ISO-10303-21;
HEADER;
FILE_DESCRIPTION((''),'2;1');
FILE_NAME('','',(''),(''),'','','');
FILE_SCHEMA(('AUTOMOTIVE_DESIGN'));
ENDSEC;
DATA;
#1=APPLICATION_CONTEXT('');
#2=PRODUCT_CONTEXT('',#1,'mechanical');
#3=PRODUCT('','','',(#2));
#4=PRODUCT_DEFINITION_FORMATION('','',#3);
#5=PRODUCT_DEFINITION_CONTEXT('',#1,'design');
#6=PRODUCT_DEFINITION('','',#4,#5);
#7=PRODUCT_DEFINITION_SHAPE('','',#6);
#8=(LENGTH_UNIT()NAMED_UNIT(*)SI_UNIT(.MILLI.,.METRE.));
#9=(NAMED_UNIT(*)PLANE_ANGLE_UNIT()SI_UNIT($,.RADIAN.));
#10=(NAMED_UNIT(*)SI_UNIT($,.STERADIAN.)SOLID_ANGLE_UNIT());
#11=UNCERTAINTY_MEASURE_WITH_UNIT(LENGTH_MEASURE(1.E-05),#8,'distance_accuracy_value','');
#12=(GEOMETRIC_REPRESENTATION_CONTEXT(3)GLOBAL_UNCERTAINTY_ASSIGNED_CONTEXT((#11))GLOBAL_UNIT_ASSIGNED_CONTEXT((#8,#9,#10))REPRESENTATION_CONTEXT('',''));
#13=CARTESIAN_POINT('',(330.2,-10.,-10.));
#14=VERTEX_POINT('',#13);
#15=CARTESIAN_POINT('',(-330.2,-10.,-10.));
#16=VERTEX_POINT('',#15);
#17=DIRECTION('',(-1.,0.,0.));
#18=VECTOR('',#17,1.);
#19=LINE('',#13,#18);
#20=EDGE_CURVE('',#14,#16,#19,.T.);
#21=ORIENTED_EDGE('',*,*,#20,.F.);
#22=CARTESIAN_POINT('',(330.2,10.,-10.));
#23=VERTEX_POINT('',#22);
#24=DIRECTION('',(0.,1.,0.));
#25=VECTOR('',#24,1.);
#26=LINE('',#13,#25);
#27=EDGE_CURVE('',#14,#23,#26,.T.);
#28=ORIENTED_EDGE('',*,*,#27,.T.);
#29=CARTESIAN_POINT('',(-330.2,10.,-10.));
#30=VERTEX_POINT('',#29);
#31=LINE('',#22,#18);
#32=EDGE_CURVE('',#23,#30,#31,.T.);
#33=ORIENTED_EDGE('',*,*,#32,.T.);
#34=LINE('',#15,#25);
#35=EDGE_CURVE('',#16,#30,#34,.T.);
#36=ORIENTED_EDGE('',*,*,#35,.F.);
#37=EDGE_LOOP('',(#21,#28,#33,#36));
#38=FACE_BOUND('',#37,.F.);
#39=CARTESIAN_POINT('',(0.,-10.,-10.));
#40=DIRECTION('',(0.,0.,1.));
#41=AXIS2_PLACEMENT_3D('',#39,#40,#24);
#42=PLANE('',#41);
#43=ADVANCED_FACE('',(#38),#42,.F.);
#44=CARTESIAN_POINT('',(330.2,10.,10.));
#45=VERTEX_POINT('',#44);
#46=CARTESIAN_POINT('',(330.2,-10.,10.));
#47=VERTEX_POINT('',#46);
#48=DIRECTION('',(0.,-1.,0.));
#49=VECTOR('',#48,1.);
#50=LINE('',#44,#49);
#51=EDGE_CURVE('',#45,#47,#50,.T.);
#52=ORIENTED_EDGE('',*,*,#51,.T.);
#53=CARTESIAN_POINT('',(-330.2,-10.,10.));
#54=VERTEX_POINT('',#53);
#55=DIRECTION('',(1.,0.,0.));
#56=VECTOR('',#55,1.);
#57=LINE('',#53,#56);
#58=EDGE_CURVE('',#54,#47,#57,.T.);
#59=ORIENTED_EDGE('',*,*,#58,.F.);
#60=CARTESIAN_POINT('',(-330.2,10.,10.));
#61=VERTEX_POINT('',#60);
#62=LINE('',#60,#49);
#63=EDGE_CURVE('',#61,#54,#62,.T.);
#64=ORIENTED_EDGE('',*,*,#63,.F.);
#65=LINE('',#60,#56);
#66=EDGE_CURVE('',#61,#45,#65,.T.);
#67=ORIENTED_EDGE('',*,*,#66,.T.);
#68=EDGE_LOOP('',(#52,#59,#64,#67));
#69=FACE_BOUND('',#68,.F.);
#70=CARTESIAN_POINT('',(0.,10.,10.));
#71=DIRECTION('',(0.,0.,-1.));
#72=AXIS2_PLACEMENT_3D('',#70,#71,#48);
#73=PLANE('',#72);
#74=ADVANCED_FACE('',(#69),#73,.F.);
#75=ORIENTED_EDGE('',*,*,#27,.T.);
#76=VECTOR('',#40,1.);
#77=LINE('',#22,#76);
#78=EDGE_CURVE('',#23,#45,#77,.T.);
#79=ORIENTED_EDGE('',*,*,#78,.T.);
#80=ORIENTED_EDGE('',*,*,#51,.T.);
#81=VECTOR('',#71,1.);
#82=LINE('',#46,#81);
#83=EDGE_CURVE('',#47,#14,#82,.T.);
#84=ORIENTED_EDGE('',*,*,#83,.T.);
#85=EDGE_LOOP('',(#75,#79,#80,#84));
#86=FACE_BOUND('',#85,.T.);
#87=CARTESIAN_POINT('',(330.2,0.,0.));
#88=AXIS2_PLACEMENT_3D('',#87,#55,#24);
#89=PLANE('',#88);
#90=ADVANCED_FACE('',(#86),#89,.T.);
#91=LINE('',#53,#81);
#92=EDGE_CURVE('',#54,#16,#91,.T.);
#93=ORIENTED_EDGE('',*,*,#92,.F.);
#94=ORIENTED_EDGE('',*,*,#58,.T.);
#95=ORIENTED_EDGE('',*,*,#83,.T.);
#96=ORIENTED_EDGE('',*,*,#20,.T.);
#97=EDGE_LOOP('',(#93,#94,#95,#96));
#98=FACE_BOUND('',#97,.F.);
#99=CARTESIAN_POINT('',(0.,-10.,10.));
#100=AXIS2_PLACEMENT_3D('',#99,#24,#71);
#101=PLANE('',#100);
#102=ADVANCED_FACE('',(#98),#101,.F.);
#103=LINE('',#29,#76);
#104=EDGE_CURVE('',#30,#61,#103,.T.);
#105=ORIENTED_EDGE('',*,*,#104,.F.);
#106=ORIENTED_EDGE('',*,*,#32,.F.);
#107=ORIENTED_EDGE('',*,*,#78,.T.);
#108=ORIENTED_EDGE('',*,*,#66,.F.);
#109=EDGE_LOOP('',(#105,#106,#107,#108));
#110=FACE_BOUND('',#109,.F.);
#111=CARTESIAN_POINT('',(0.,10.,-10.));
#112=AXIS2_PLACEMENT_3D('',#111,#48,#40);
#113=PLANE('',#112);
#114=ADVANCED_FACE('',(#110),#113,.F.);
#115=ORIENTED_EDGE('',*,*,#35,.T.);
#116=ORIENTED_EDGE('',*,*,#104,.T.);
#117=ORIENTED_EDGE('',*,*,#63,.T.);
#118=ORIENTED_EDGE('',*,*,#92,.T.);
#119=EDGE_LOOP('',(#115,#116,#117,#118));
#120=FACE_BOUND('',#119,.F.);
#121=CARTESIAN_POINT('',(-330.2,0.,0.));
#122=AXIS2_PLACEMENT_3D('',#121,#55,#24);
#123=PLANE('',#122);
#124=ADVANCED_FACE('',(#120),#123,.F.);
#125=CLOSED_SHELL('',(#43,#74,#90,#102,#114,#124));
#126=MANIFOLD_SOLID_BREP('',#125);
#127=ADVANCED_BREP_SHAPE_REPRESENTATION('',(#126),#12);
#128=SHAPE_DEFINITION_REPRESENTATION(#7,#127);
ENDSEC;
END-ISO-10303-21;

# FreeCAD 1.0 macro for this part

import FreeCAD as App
import Part
import Sketcher

V = App.Vector
Q = App.Units.Quantity

doc = App.newDocument("Part")
body = doc.addObject("PartDesign::Body", "Body")

# Sketch on YZ plane
sketch1 = body.newObject("Sketcher::SketchObject", "Sketch")
sketch1.AttachmentSupport = (doc.getObject("YZ_Plane"), [""])
sketch1.MapMode = "FlatFace"
sketch1.addGeometry([
    Part.LineSegment(V(10, -10, 0), V(10, 10, 0)),
    Part.LineSegment(V(10, 10, 0), V(-10, 10, 0)),
    Part.LineSegment(V(-10, 10, 0), V(-10, -10, 0)),
    Part.LineSegment(V(-10, -10, 0), V(10, -10, 0)),
], False)
sketch1.addConstraint([
    Sketcher.Constraint("Coincident", 0, 2, 1, 1),
    Sketcher.Constraint("Coincident", 1, 2, 2, 1),
    Sketcher.Constraint("Coincident", 2, 2, 3, 1),
    Sketcher.Constraint("Coincident", 3, 2, 0, 1),
    Sketcher.Constraint("Vertical", 0),
    Sketcher.Constraint("Horizontal", 1),
    Sketcher.Constraint("Vertical", 2),
    Sketcher.Constraint("Horizontal", 3),
    Sketcher.Constraint("Symmetric", 0, 2, 2, 2, -1, 1),
    Sketcher.Constraint("Equal", 3, 0),
    Sketcher.Constraint("DistanceX", 1, 2, 1, 1, Q("0.7874 in")),
])
pad1 = body.newObject("PartDesign::Pad", "Pad")
pad1.Profile = sketch1
pad1.Length = Q("26 in")
pad1.Midplane = True

doc.recompute()
